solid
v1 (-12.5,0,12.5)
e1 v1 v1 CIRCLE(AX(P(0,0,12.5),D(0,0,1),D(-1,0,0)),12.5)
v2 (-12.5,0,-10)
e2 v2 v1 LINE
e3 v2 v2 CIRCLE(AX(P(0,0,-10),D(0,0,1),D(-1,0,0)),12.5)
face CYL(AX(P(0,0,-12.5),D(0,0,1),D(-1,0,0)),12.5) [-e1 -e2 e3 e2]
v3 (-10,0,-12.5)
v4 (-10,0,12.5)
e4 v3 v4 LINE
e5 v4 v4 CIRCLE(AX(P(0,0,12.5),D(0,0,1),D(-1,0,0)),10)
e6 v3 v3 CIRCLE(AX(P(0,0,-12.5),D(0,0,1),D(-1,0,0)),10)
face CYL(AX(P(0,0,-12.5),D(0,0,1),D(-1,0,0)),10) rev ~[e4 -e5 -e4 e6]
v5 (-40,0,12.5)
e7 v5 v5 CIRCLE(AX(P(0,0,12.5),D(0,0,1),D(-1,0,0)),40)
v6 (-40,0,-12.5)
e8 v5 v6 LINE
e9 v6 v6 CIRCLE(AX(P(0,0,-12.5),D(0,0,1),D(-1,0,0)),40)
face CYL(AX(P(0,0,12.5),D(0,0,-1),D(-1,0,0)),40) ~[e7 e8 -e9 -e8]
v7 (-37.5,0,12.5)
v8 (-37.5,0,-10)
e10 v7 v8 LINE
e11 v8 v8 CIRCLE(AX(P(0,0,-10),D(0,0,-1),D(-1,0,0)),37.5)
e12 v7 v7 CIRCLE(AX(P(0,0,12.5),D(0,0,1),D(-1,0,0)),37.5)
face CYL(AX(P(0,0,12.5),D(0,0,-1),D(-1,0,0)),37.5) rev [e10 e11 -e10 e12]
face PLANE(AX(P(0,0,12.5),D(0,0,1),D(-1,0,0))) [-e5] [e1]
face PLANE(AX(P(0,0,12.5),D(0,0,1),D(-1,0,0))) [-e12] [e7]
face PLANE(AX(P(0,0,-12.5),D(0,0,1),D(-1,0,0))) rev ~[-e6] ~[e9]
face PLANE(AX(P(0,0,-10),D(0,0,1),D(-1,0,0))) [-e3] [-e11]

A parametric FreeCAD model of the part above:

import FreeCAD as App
import Part
import Sketcher


def faces_at(feature, points):
    """Names of the faces that lie closest to the given points."""
    faces = feature.Shape.Faces
    near = lambda p: min(range(len(faces)), key=lambda i: faces[i].distToShape(Part.Vertex(*p))[0])
    return sorted({f"Face{near(p) + 1}" for p in points})


def add_polygon(sketch, points):
    """Adds a closed chain of lines whose ends are joined by coincident constraints."""
    first, n = sketch.GeometryCount, len(points)
    for a, b in zip(points, points[1:] + points[:1]):
        sketch.addGeometry(Part.LineSegment(App.Vector(*a, 0), App.Vector(*b, 0)), False)
    for i in range(n):
        sketch.addConstraint(Sketcher.Constraint("Coincident", first + i, 2, first + (i + 1) % n, 1))

doc = App.newDocument("Part")
body = doc.addObject("PartDesign::Body", "Body")

sketch1 = body.newObject("Sketcher::SketchObject", "Sketch")
sketch1.AttachmentSupport = (doc.getObject("XZ_Plane"), [""])
sketch1.MapMode = "FlatFace"
add_polygon(sketch1, [(-40, 12.5), (-40, -12.5), (-10, -12.5), (-10, 12.5)])
sketch1.addConstraint([
    Sketcher.Constraint("Vertical", 0),
    Sketcher.Constraint("Horizontal", 1),
    Sketcher.Constraint("Vertical", 2),
    Sketcher.Constraint("Horizontal", 3),
    Sketcher.Constraint("DistanceX", 1, 1, 1, 2, 30.0),
    Sketcher.Constraint("DistanceY", 0, 2, 0, 1, 25.0),
    Sketcher.Constraint("DistanceX", 0, 2, -1, 1, 40.0),
    Sketcher.Constraint("DistanceY", 0, 2, -1, 1, 12.5),
])
revolution = body.newObject("PartDesign::Revolution", "Revolution")
revolution.Profile = sketch1
revolution.ReferenceAxis = (sketch1, ["V_Axis"])
revolution.Angle = 360
doc.recompute()

thickness = body.newObject("PartDesign::Thickness", "Thickness")
thickness.Base = (revolution, faces_at(revolution, [(16, 16, 12.5)]))
thickness.Value = 2.5
thickness.Reversed = True
thickness.Join = "Arc"

doc.recompute()
